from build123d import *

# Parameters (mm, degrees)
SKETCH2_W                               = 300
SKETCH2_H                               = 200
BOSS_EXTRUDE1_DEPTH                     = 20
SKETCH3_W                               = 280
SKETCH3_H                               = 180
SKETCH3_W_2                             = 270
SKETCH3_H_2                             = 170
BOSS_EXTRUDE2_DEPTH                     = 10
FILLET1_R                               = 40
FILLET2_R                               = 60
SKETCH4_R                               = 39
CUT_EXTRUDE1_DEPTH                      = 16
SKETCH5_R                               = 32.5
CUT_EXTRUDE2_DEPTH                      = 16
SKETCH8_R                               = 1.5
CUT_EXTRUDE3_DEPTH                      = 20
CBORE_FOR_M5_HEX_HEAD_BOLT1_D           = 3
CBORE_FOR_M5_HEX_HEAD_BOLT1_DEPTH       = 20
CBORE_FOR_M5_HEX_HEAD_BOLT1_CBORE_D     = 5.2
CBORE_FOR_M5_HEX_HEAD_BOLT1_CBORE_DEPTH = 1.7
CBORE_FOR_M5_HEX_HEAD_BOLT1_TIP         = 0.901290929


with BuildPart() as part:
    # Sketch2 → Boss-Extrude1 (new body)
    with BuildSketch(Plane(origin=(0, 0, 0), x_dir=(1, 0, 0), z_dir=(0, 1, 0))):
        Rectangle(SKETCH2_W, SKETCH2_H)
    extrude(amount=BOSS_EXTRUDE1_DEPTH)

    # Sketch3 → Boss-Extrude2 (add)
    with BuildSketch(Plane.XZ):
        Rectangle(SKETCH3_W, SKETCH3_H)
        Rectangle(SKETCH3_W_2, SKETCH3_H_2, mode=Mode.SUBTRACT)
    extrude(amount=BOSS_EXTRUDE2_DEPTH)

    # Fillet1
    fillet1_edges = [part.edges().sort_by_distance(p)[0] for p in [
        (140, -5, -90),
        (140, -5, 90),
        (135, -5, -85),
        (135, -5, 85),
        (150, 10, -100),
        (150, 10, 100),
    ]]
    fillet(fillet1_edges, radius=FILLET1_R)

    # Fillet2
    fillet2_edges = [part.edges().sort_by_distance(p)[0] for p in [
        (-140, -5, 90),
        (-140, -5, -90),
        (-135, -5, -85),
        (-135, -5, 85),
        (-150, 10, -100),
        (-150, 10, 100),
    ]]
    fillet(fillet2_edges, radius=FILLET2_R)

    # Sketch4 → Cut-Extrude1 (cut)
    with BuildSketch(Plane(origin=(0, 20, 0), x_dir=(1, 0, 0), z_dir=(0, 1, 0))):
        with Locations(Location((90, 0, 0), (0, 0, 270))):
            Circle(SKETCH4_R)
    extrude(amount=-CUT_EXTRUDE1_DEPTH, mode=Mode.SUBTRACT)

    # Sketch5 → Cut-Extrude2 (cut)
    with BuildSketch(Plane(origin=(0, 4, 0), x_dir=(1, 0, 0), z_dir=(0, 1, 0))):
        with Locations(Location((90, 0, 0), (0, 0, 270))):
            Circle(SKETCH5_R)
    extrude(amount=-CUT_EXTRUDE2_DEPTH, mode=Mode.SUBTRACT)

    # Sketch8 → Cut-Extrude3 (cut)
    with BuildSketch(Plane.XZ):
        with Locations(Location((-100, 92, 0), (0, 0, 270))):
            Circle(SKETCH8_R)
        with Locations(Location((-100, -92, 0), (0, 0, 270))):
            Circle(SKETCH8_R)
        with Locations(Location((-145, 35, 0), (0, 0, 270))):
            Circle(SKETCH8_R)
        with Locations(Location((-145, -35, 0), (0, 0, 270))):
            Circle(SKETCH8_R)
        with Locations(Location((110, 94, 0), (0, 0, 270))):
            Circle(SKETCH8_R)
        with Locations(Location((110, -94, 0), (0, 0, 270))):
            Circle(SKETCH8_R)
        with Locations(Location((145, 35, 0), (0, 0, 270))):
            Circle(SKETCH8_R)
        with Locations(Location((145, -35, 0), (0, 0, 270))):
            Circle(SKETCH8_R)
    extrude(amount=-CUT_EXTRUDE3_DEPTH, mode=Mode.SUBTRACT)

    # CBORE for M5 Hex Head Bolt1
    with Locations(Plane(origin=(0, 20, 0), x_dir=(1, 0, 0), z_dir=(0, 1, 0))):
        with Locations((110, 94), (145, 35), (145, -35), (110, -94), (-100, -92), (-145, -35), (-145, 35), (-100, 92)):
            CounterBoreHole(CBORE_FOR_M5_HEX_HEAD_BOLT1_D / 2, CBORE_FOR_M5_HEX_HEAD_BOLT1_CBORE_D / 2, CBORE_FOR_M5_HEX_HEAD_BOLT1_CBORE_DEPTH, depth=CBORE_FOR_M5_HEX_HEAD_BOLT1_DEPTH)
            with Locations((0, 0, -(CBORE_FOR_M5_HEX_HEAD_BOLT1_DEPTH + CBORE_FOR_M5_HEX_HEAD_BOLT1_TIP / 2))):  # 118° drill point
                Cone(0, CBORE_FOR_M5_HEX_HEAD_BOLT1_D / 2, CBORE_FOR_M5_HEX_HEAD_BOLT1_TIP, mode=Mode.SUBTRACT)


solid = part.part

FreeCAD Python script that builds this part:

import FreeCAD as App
import Part
import Sketcher

V = App.Vector
Q = App.Units.Quantity


def edges_at(feature, points):
    """Names of the edges that pass closest to the given points."""
    edges = feature.Shape.Edges
    near = lambda p: min(range(len(edges)), key=lambda i: edges[i].distToShape(Part.Vertex(*p))[0])
    return sorted({f"Edge{near(p) + 1}" for p in points})


def add_polygon(sketch, points):
    """Adds a closed chain of lines whose ends are joined by coincident constraints."""
    first, n = sketch.GeometryCount, len(points)
    for a, b in zip(points, points[1:] + points[:1]):
        sketch.addGeometry(Part.LineSegment(App.Vector(*a, 0), App.Vector(*b, 0)), False)
    for i in range(n):
        sketch.addConstraint(Sketcher.Constraint("Coincident", first + i, 2, first + (i + 1) % n, 1))

doc = App.newDocument("Part")
body = doc.addObject("PartDesign::Body", "Body")

# Sketch on XZ plane
sketch1 = body.newObject("Sketcher::SketchObject", "Sketch")
sketch1.AttachmentSupport = (doc.getObject("XZ_Plane"), [""])
sketch1.MapMode = "FlatFace"
add_polygon(sketch1, [(-150, -100), (-150, 100), (150, 100), (150, -100)])  # lines 0-3
sketch1.addConstraint(Sketcher.Constraint("Vertical", 0))
sketch1.addConstraint(Sketcher.Constraint("Horizontal", 1))
sketch1.addConstraint(Sketcher.Constraint("Vertical", 2))
sketch1.addConstraint(Sketcher.Constraint("Horizontal", 3))
sketch1.addConstraint(Sketcher.Constraint("Symmetric", 0, 2, 2, 2, -1, 1))
sketch1.addConstraint(Sketcher.Constraint("DistanceX", 1, 1, 1, 2, Q("300 mm")))
sketch1.addConstraint(Sketcher.Constraint("DistanceY", 0, 1, 0, 2, Q("200 mm")))
pad1 = body.newObject("PartDesign::Pad", "Pad")
pad1.Profile = sketch1
pad1.Length = 20
pad1.Reversed = True

# Sketch on XZ plane
sketch2 = body.newObject("Sketcher::SketchObject", "Sketch001")
sketch2.AttachmentSupport = (doc.getObject("XZ_Plane"), [""])
sketch2.MapMode = "FlatFace"
add_polygon(sketch2, [(-140, 90), (-140, -90), (140, -90), (140, 90)])  # lines 0-3
add_polygon(sketch2, [(135, -85), (-135, -85), (-135, 85), (135, 85)])  # lines 4-7
sketch2.addConstraint(Sketcher.Constraint("Vertical", 0))
sketch2.addConstraint(Sketcher.Constraint("Horizontal", 1))
sketch2.addConstraint(Sketcher.Constraint("Vertical", 2))
sketch2.addConstraint(Sketcher.Constraint("Horizontal", 3))
sketch2.addConstraint(Sketcher.Constraint("Horizontal", 4))
sketch2.addConstraint(Sketcher.Constraint("Vertical", 5))
sketch2.addConstraint(Sketcher.Constraint("Horizontal", 6))
sketch2.addConstraint(Sketcher.Constraint("Vertical", 7))
sketch2.addConstraint(Sketcher.Constraint("Symmetric", 0, 2, 2, 2, -1, 1))
sketch2.addConstraint(Sketcher.Constraint("Symmetric", 4, 2, 6, 2, -1, 1))
sketch2.addConstraint(Sketcher.Constraint("DistanceX", 1, 1, 1, 2, Q("280 mm")))
sketch2.addConstraint(Sketcher.Constraint("DistanceX", 4, 2, 4, 1, Q("270 mm")))
sketch2.addConstraint(Sketcher.Constraint("DistanceY", 0, 2, 0, 1, Q("180 mm")))
sketch2.addConstraint(Sketcher.Constraint("DistanceY", 5, 1, 5, 2, Q("170 mm")))
pad2 = body.newObject("PartDesign::Pad", "Pad001")
pad2.Profile = sketch2
pad2.Length = 10
doc.recompute()

fillet = body.newObject("PartDesign::Fillet", "Fillet")
fillet.Base = (pad2, edges_at(pad2, [
    (140, -5, -90),
    (140, -5, 90),
    (135, -5, -85),
    (135, -5, 85),
    (150, 10, -100),
    (150, 10, 100),
]))
fillet.Radius = 40
doc.recompute()

fillet2 = body.newObject("PartDesign::Fillet", "Fillet001")
fillet2.Base = (fillet, edges_at(fillet, [
    (-140, -5, 90),
    (-140, -5, -90),
    (-135, -5, -85),
    (-135, -5, 85),
    (-150, 10, -100),
    (-150, 10, 100),
]))
fillet2.Radius = 60

# Sketch on XZ plane
sketch3 = body.newObject("Sketcher::SketchObject", "Sketch002")
sketch3.AttachmentSupport = (doc.getObject("XZ_Plane"), [""])
sketch3.MapMode = "FlatFace"
sketch3.AttachmentOffset = App.Placement(V(0, 0, -20), App.Rotation())
sketch3.addGeometry(Part.Circle(V(90, 0, 0), V(0, 0, 1), 39), False)
sketch3.addConstraint(Sketcher.Constraint("PointOnObject", 0, 3, -1))
sketch3.addConstraint(Sketcher.Constraint("Diameter", 0, Q("78 mm")))
sketch3.addConstraint(Sketcher.Constraint("DistanceX", -1, 1, 0, 3, Q("90 mm")))
pocket1 = body.newObject("PartDesign::Pocket", "Pocket")
pocket1.Profile = sketch3
pocket1.Length = 16
pocket1.Reversed = True

# Sketch on XZ plane
sketch4 = body.newObject("Sketcher::SketchObject", "Sketch003")
sketch4.AttachmentSupport = (doc.getObject("XZ_Plane"), [""])
sketch4.MapMode = "FlatFace"
sketch4.AttachmentOffset = App.Placement(V(0, 0, -4), App.Rotation())
sketch4.addGeometry(Part.Circle(V(90, 0, 0), V(0, 0, 1), 32), False)
sketch4.addConstraint(Sketcher.Constraint("PointOnObject", 0, 3, -1))
sketch4.addConstraint(Sketcher.Constraint("Diameter", 0, Q("65 mm")))
sketch4.addConstraint(Sketcher.Constraint("DistanceX", -1, 1, 0, 3, Q("90 mm")))
pocket2 = body.newObject("PartDesign::Pocket", "Pocket001")
pocket2.Profile = sketch4
pocket2.Length = 16
pocket2.Reversed = True

# Sketch on XZ plane
sketch5 = body.newObject("Sketcher::SketchObject", "Sketch004")
sketch5.AttachmentSupport = (doc.getObject("XZ_Plane"), [""])
sketch5.MapMode = "FlatFace"
sketch5.addGeometry(Part.Circle(V(-100, 92, 0), V(0, 0, 1), 1.5), False)
sketch5.addGeometry(Part.Circle(V(-100, -92, 0), V(0, 0, 1), 1.5), False)
sketch5.addGeometry(Part.Circle(V(-145, 35, 0), V(0, 0, 1), 1.5), False)
sketch5.addGeometry(Part.Circle(V(-145, -35, 0), V(0, 0, 1), 1.5), False)
sketch5.addGeometry(Part.Circle(V(110, 94, 0), V(0, 0, 1), 1.5), False)
sketch5.addGeometry(Part.Circle(V(110, -94, 0), V(0, 0, 1), 1.5), False)
sketch5.addGeometry(Part.Circle(V(145, 35, 0), V(0, 0, 1), 1.5), False)
sketch5.addGeometry(Part.Circle(V(145, -35, 0), V(0, 0, 1), 1.5), False)
sketch5.addConstraint(Sketcher.Constraint("Equal", 0, 1))
sketch5.addConstraint(Sketcher.Constraint("Equal", 1, 2))
sketch5.addConstraint(Sketcher.Constraint("Equal", 2, 3))
sketch5.addConstraint(Sketcher.Constraint("Equal", 3, 4))
sketch5.addConstraint(Sketcher.Constraint("Equal", 4, 5))
sketch5.addConstraint(Sketcher.Constraint("Equal", 5, 6))
sketch5.addConstraint(Sketcher.Constraint("Equal", 6, 7))
sketch5.addConstraint(Sketcher.Constraint("Symmetric", 3, 3, 6, 3, -1, 1))
sketch5.addConstraint(Sketcher.Constraint("Symmetric", 2, 3, 7, 3, -1, 1))
sketch5.addConstraint(Sketcher.Constraint("Symmetric", 2, 3, 6, 3, -2))
sketch5.addConstraint(Sketcher.Constraint("Symmetric", 0, 3, 1, 3, -1))
sketch5.addConstraint(Sketcher.Constraint("Symmetric", 4, 3, 5, 3, -1))
sketch5.addConstraint(Sketcher.Constraint("Diameter", 0, Q("3 mm")))
sketch5.addConstraint(Sketcher.Constraint("DistanceX", 0, 3, -1, 1, Q("100 mm")))
sketch5.addConstraint(Sketcher.Constraint("DistanceY", -1, 1, 0, 3, Q("92 mm")))
sketch5.addConstraint(Sketcher.Constraint("DistanceX", 2, 3, -1, 1, Q("145 mm")))
sketch5.addConstraint(Sketcher.Constraint("DistanceY", -1, 1, 2, 3, Q("35 mm")))
sketch5.addConstraint(Sketcher.Constraint("DistanceX", -1, 1, 4, 3, Q("110 mm")))
sketch5.addConstraint(Sketcher.Constraint("DistanceY", -1, 1, 4, 3, Q("94 mm")))
pocket3 = body.newObject("PartDesign::Pocket", "Pocket002")
pocket3.Profile = sketch5
pocket3.Length = 20

# Sketch on XZ plane
sketch6 = body.newObject("Sketcher::SketchObject", "Sketch005")
sketch6.AttachmentSupport = (doc.getObject("XZ_Plane"), [""])
sketch6.MapMode = "FlatFace"
sketch6.AttachmentOffset = App.Placement(V(0, 0, -20), App.Rotation())
sketch6.addGeometry(Part.Circle(V(110, -94, 0), V(0, 0, 1), 1.5), False)
sketch6.addGeometry(Part.Circle(V(145, -35, 0), V(0, 0, 1), 1.5), False)
sketch6.addGeometry(Part.Circle(V(145, 35, 0), V(0, 0, 1), 1.5), False)
sketch6.addGeometry(Part.Circle(V(110, 94, 0), V(0, 0, 1), 1.5), False)
sketch6.addGeometry(Part.Circle(V(-100, 92, 0), V(0, 0, 1), 1.5), False)
sketch6.addGeometry(Part.Circle(V(-145, 35, 0), V(0, 0, 1), 1.5), False)
sketch6.addGeometry(Part.Circle(V(-145, -35, 0), V(0, 0, 1), 1.5), False)
sketch6.addGeometry(Part.Circle(V(-100, -92, 0), V(0, 0, 1), 1.5), False)
sketch6.addConstraint(Sketcher.Constraint("Equal", 0, 1))
sketch6.addConstraint(Sketcher.Constraint("Equal", 1, 2))
sketch6.addConstraint(Sketcher.Constraint("Equal", 2, 3))
sketch6.addConstraint(Sketcher.Constraint("Equal", 3, 4))
sketch6.addConstraint(Sketcher.Constraint("Equal", 4, 5))
sketch6.addConstraint(Sketcher.Constraint("Equal", 5, 6))
sketch6.addConstraint(Sketcher.Constraint("Equal", 6, 7))
sketch6.addConstraint(Sketcher.Constraint("Symmetric", 1, 3, 5, 3, -1, 1))
sketch6.addConstraint(Sketcher.Constraint("Symmetric", 2, 3, 6, 3, -1, 1))
sketch6.addConstraint(Sketcher.Constraint("Symmetric", 2, 3, 5, 3, -2))
sketch6.addConstraint(Sketcher.Constraint("Symmetric", 0, 3, 3, 3, -1))
sketch6.addConstraint(Sketcher.Constraint("Symmetric", 4, 3, 7, 3, -1))
sketch6.addConstraint(Sketcher.Constraint("Diameter", 0, Q("3 mm")))
sketch6.addConstraint(Sketcher.Constraint("DistanceX", -1, 1, 0, 3, Q("110 mm")))
sketch6.addConstraint(Sketcher.Constraint("DistanceY", 0, 3, -1, 1, Q("94 mm")))
sketch6.addConstraint(Sketcher.Constraint("DistanceX", -1, 1, 1, 3, Q("145 mm")))
sketch6.addConstraint(Sketcher.Constraint("DistanceY", 1, 3, -1, 1, Q("35 mm")))
sketch6.addConstraint(Sketcher.Constraint("DistanceX", 4, 3, -1, 1, Q("100 mm")))
sketch6.addConstraint(Sketcher.Constraint("DistanceY", -1, 1, 4, 3, Q("92 mm")))
doc.recompute()
hole = body.newObject("PartDesign::Hole", "Hole")
hole.Profile = sketch6
hole.ThreadType = "None"
hole.Diameter = 3
hole.DepthType = "Dimension"
hole.Depth = 20
hole.DrillPoint = "Angled"
hole.DrillPointAngle = 118
hole.HoleCutType = "Counterbore"
hole.HoleCutDiameter = 5.2
hole.HoleCutDepth = 1.7
hole.Reversed = True

doc.recompute()
